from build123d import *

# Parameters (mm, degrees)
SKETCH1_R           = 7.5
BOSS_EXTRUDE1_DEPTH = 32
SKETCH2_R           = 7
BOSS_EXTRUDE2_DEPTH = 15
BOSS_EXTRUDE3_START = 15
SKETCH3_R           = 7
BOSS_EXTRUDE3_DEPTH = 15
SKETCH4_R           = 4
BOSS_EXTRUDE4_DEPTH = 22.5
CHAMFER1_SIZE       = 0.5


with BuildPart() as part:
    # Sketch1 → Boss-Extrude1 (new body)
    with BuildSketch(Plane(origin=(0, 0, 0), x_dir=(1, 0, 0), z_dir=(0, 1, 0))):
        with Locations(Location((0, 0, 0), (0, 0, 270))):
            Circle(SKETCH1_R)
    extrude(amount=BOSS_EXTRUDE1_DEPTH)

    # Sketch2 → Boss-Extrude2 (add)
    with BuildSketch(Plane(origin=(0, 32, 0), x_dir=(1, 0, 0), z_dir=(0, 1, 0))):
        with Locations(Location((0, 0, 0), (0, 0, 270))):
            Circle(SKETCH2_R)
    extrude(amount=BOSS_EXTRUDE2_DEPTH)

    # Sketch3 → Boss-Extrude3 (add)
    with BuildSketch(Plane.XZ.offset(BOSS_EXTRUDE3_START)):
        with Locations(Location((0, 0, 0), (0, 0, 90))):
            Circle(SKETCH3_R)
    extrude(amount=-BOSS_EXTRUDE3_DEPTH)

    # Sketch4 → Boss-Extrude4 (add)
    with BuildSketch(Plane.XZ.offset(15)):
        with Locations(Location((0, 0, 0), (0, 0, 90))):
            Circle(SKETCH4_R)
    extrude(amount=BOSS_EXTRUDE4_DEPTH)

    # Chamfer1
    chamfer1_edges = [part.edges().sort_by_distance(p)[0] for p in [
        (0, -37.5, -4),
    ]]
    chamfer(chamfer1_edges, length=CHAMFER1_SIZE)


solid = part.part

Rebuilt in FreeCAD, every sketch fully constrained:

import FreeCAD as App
import Part
import Sketcher
from FreeCAD import Vector


def edges_at(feature, points):
    """Names of the edges that pass closest to the given points."""
    edges = feature.Shape.Edges
    near = lambda p: min(range(len(edges)), key=lambda i: edges[i].distToShape(Part.Vertex(*p))[0])
    return sorted({f"Edge{near(p) + 1}" for p in points})

doc = App.newDocument("Part")
body = doc.addObject("PartDesign::Body", "Body")

# Sketch on XZ plane
sketch1 = doc.addObject("Sketcher::SketchObject", "Sketch")
body.addObject(sketch1)
sketch1.AttachmentSupport = (doc.XZ_Plane, [""])
sketch1.MapMode = "FlatFace"
sketch1.addGeometry(Part.Circle(Vector(0, 0, 0), Vector(0, 0, 1), 8), False)
sketch1.addConstraint(Sketcher.Constraint("Coincident", 0, 3, -1, 1))
sketch1.addConstraint(Sketcher.Constraint("Diameter", 0, 15.0))
pad1 = doc.addObject("PartDesign::Pad", "Pad")
body.addObject(pad1)
pad1.Profile = sketch1
pad1.Length = 32
pad1.Reversed = True

# Sketch on XZ plane
sketch2 = doc.addObject("Sketcher::SketchObject", "Sketch001")
body.addObject(sketch2)
sketch2.AttachmentSupport = (doc.XZ_Plane, [""])
sketch2.MapMode = "FlatFace"
sketch2.AttachmentOffset = App.Placement(Vector(0, 0, -32), App.Rotation())
sketch2.addGeometry(Part.Circle(Vector(0, 0, 0), Vector(0, 0, 1), 7), False)
sketch2.addConstraint(Sketcher.Constraint("Coincident", 0, 3, -1, 1))
sketch2.addConstraint(Sketcher.Constraint("Diameter", 0, 14.0))
pad2 = doc.addObject("PartDesign::Pad", "Pad001")
body.addObject(pad2)
pad2.Profile = sketch2
pad2.Length = 15
pad2.Reversed = True

# Sketch on XZ plane
sketch3 = doc.addObject("Sketcher::SketchObject", "Sketch002")
body.addObject(sketch3)
sketch3.AttachmentSupport = (doc.XZ_Plane, [""])
sketch3.MapMode = "FlatFace"
sketch3.AttachmentOffset = App.Placement(Vector(0, 0, 15), App.Rotation())
sketch3.addGeometry(Part.Circle(Vector(0, 0, 0), Vector(0, 0, 1), 7), False)
sketch3.addConstraint(Sketcher.Constraint("Coincident", 0, 3, -1, 1))
sketch3.addConstraint(Sketcher.Constraint("Diameter", 0, 14.0))
pad3 = doc.addObject("PartDesign::Pad", "Pad002")
body.addObject(pad3)
pad3.Profile = sketch3
pad3.Length = 15
pad3.Reversed = True

# Sketch on XZ plane
sketch4 = doc.addObject("Sketcher::SketchObject", "Sketch003")
body.addObject(sketch4)
sketch4.AttachmentSupport = (doc.XZ_Plane, [""])
sketch4.MapMode = "FlatFace"
sketch4.AttachmentOffset = App.Placement(Vector(0, 0, 15), App.Rotation())
sketch4.addGeometry(Part.Circle(Vector(0, 0, 0), Vector(0, 0, 1), 4), False)
sketch4.addConstraint(Sketcher.Constraint("Coincident", 0, 3, -1, 1))
sketch4.addConstraint(Sketcher.Constraint("Diameter", 0, 8.0))
pad4 = doc.addObject("PartDesign::Pad", "Pad003")
body.addObject(pad4)
pad4.Profile = sketch4
pad4.Length = 22.5
doc.recompute()

chamfer = doc.addObject("PartDesign::Chamfer", "Chamfer")
body.addObject(chamfer)
chamfer.Base = (pad4, edges_at(pad4, [(0, -37.5, -4)]))
chamfer.Size = 0.5

doc.recompute()
